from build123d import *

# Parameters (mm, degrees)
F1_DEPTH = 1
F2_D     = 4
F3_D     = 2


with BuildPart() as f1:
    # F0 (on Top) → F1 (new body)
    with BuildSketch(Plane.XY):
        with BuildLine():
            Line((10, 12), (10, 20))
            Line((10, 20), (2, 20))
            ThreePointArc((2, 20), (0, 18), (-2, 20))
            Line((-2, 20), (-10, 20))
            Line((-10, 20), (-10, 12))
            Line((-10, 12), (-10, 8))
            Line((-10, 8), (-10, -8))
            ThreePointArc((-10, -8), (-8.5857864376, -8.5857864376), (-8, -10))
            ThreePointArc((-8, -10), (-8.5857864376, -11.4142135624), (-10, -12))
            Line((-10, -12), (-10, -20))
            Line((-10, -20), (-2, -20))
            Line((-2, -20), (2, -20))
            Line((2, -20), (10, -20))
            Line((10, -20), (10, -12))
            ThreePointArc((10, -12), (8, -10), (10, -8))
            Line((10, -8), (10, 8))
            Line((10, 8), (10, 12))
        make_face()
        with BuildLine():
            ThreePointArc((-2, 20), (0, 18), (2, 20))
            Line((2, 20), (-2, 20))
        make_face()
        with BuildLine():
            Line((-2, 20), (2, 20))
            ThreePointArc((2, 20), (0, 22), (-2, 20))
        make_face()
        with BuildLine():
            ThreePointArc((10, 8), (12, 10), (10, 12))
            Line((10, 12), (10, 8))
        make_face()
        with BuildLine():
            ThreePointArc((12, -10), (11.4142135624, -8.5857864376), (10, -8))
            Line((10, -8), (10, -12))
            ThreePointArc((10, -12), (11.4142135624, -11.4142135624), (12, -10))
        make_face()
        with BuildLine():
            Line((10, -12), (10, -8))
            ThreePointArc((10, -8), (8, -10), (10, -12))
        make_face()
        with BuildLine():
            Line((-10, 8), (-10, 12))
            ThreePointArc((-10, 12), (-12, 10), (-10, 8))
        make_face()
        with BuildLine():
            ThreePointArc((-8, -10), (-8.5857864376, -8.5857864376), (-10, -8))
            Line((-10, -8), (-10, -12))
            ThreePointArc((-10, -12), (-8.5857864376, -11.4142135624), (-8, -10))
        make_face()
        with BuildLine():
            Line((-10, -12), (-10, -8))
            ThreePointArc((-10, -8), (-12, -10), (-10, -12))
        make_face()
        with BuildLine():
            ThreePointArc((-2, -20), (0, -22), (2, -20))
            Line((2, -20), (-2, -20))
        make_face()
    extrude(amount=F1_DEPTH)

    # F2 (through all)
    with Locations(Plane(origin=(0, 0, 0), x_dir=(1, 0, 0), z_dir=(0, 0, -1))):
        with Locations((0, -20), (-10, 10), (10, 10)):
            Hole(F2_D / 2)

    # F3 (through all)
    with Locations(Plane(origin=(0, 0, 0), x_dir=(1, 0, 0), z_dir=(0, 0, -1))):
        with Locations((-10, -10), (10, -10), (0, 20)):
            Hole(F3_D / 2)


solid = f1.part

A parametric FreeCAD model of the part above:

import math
import FreeCAD as App
import Part
import Sketcher

V = App.Vector
Q = App.Units.Quantity

doc = App.newDocument("Part")
body = doc.addObject("PartDesign::Body", "Body")

sketch1 = doc.addObject("Sketcher::SketchObject", "Sketch")
body.addObject(sketch1)
sketch1.AttachmentSupport = (doc.XY_Plane, [""])
sketch1.MapMode = "FlatFace"
sketch1.addGeometry([
    Part.LineSegment(V(10, 20, 0), V(2, 20, 0)),
    Part.ArcOfCircle(Part.Circle(V(0, 20, 0), V(0, 0, 1), 2), math.radians(0), math.radians(180)),
    Part.LineSegment(V(-2, 20, 0), V(-10, 20, 0)),
    Part.LineSegment(V(-10, 20, 0), V(-10, 12, 0)),
    Part.ArcOfCircle(Part.Circle(V(-10, 10, 0), V(0, 0, 1), 2), math.radians(90), math.radians(270)),
    Part.LineSegment(V(-10, 8, 0), V(-10, -8, 0)),
    Part.ArcOfCircle(Part.Circle(V(-10, -10, 0), V(0, 0, 1), 2), math.radians(90), math.radians(270)),
    Part.LineSegment(V(-10, -12, 0), V(-10, -20, 0)),
    Part.LineSegment(V(-10, -20, 0), V(-2, -20, 0)),
    Part.ArcOfCircle(Part.Circle(V(0, -20, 0), V(0, 0, 1), 2), math.radians(180), math.radians(360)),
    Part.LineSegment(V(2, -20, 0), V(10, -20, 0)),
    Part.LineSegment(V(10, -20, 0), V(10, -12, 0)),
    Part.ArcOfCircle(Part.Circle(V(10, -10, 0), V(0, 0, 1), 2), math.radians(-90), math.radians(0)),
    Part.ArcOfCircle(Part.Circle(V(10, -10, 0), V(0, 0, 1), 2), math.radians(0), math.radians(90)),
    Part.LineSegment(V(10, -8, 0), V(10, 8, 0)),
    Part.ArcOfCircle(Part.Circle(V(10, 10, 0), V(0, 0, 1), 2), math.radians(-90), math.radians(90)),
    Part.LineSegment(V(10, 12, 0), V(10, 20, 0)),
], False)
sketch1.addConstraint([
    Sketcher.Constraint("Coincident", 0, 2, 1, 1),
    Sketcher.Constraint("Coincident", 1, 2, 2, 1),
    Sketcher.Constraint("Coincident", 2, 2, 3, 1),
    Sketcher.Constraint("Coincident", 3, 2, 4, 1),
    Sketcher.Constraint("Coincident", 4, 2, 5, 1),
    Sketcher.Constraint("Coincident", 5, 2, 6, 1),
    Sketcher.Constraint("Coincident", 6, 2, 7, 1),
    Sketcher.Constraint("Coincident", 7, 2, 8, 1),
    Sketcher.Constraint("Coincident", 8, 2, 9, 1),
    Sketcher.Constraint("Coincident", 9, 2, 10, 1),
    Sketcher.Constraint("Coincident", 10, 2, 11, 1),
    Sketcher.Constraint("Coincident", 11, 2, 12, 1),
    Sketcher.Constraint("Tangent", 12, 2, 13, 1),
    Sketcher.Constraint("Coincident", 13, 2, 14, 1),
    Sketcher.Constraint("Coincident", 14, 2, 15, 1),
    Sketcher.Constraint("Coincident", 15, 2, 16, 1),
    Sketcher.Constraint("Coincident", 16, 2, 0, 1),
    Sketcher.Constraint("Horizontal", 0),
    Sketcher.Constraint("Horizontal", 2),
    Sketcher.Constraint("Vertical", 3),
    Sketcher.Constraint("Vertical", 5),
    Sketcher.Constraint("Vertical", 7),
    Sketcher.Constraint("Horizontal", 8),
    Sketcher.Constraint("Horizontal", 10),
    Sketcher.Constraint("Vertical", 11),
    Sketcher.Constraint("Vertical", 14),
    Sketcher.Constraint("Vertical", 16),
    Sketcher.Constraint("Equal", 1, 4),
    Sketcher.Constraint("Equal", 4, 6),
    Sketcher.Constraint("Equal", 6, 9),
    Sketcher.Constraint("Equal", 9, 12),
    Sketcher.Constraint("Equal", 12, 13),
    Sketcher.Constraint("Equal", 13, 15),
    Sketcher.Constraint("Symmetric", 1, 3, 9, 3, -1, 1),
    Sketcher.Constraint("Symmetric", 4, 3, 12, 3, -1, 1),
    Sketcher.Constraint("Symmetric", 6, 3, 15, 3, -1, 1),
    Sketcher.Constraint("Symmetric", 2, 2, 10, 2, -1, 1),
    Sketcher.Constraint("Symmetric", 7, 2, 16, 2, -1, 1),
    Sketcher.Constraint("Symmetric", 6, 3, 12, 3, -2),
    Sketcher.Constraint("Symmetric", 0, 2, 1, 2, -2),
    Sketcher.Constraint("Horizontal", 1, 3, 0, 2),
    Sketcher.Constraint("Horizontal", 13, 3, 12, 2),
    Sketcher.Constraint("Vertical", 6, 3, 2, 2),
    Sketcher.Constraint("Vertical", 3, 2, 4, 2),
    Sketcher.Constraint("Vertical", 5, 2, 6, 2),
    Sketcher.Constraint("Vertical", 11, 2, 13, 2),
    Sketcher.Constraint("Equal", 10, 3),
    Sketcher.Constraint("Radius", 1, Q("2 mm")),
    Sketcher.Constraint("DistanceX", 0, 2, 0, 1, Q("8 mm")),
    Sketcher.Constraint("DistanceY", 5, 2, 5, 1, Q("16 mm")),
])
pad1 = doc.addObject("PartDesign::Pad", "Pad")
body.addObject(pad1)
pad1.Profile = sketch1
pad1.Length = 1

sketch2 = doc.addObject("Sketcher::SketchObject", "Sketch001")
body.addObject(sketch2)
sketch2.AttachmentSupport = (doc.XY_Plane, [""])
sketch2.MapMode = "FlatFace"
sketch2.addGeometry([
    Part.Circle(V(0, 20, 0), V(0, 0, 1), 2),
    Part.Circle(V(-10, -10, 0), V(0, 0, 1), 2),
    Part.Circle(V(10, -10, 0), V(0, 0, 1), 2),
], False)
sketch2.addConstraint([
    Sketcher.Constraint("Equal", 0, 1),
    Sketcher.Constraint("Equal", 1, 2),
    Sketcher.Constraint("Symmetric", 1, 3, 2, 3, -2),
    Sketcher.Constraint("PointOnObject", 0, 3, -2),
    Sketcher.Constraint("Diameter", 0, Q("4 mm")),
    Sketcher.Constraint("DistanceY", -1, 1, 0, 3, Q("20 mm")),
    Sketcher.Constraint("DistanceX", 1, 3, -1, 1, Q("10 mm")),
    Sketcher.Constraint("DistanceY", 1, 3, -1, 1, Q("10 mm")),
])
doc.recompute()
hole = doc.addObject("PartDesign::Hole", "Hole")
body.addObject(hole)
hole.Profile = sketch2
hole.ThreadType = "None"
hole.Diameter = 4
hole.DepthType = "ThroughAll"
hole.Reversed = True

sketch3 = doc.addObject("Sketcher::SketchObject", "Sketch002")
body.addObject(sketch3)
sketch3.AttachmentSupport = (doc.XY_Plane, [""])
sketch3.MapMode = "FlatFace"
sketch3.addGeometry([
    Part.Circle(V(-10, 10, 0), V(0, 0, 1), 1),
    Part.Circle(V(10, 10, 0), V(0, 0, 1), 1),
    Part.Circle(V(0, -20, 0), V(0, 0, 1), 1),
], False)
sketch3.addConstraint([
    Sketcher.Constraint("Equal", 0, 1),
    Sketcher.Constraint("Equal", 1, 2),
    Sketcher.Constraint("Symmetric", 0, 3, 1, 3, -2),
    Sketcher.Constraint("PointOnObject", 2, 3, -2),
    Sketcher.Constraint("Diameter", 0, Q("2 mm")),
    Sketcher.Constraint("DistanceX", 0, 3, -1, 1, Q("10 mm")),
    Sketcher.Constraint("DistanceY", -1, 1, 0, 3, Q("10 mm")),
    Sketcher.Constraint("DistanceY", 2, 3, -1, 1, Q("20 mm")),
])
doc.recompute()
hole2 = doc.addObject("PartDesign::Hole", "Hole001")
body.addObject(hole2)
hole2.Profile = sketch3
hole2.ThreadType = "None"
hole2.Diameter = 2
hole2.DepthType = "ThroughAll"
hole2.Reversed = True

doc.recompute()
